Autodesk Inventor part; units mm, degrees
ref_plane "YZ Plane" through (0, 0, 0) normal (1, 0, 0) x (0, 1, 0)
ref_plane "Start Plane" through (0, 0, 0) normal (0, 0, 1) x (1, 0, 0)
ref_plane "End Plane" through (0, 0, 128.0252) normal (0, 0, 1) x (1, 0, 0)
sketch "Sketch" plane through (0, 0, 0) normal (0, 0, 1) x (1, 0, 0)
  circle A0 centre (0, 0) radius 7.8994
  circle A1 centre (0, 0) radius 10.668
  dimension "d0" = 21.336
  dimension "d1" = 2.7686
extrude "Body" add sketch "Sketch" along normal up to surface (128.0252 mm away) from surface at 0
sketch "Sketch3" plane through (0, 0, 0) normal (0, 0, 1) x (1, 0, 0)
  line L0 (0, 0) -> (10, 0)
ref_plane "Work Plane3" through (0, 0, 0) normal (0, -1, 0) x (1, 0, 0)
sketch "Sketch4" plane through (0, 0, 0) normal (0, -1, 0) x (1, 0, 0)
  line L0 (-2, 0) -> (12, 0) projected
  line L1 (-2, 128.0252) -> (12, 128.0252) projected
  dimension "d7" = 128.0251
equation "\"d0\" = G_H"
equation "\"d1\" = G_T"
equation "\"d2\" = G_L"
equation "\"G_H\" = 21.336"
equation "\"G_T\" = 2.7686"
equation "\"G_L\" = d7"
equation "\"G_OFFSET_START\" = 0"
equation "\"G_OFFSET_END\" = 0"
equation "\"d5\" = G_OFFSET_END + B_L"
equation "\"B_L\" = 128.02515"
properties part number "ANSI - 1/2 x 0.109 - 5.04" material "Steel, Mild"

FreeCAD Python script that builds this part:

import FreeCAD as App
import Part
import Sketcher

V = App.Vector
Q = App.Units.Quantity

doc = App.newDocument("Part")
params = doc.addObject("Spreadsheet::Sheet", "Params")
for row, (alias, value) in enumerate([
    ("sketch1_diameter", "0.84 in"),
    ("sketch1_diameter2", "0.622 in"),
    ("pad1_length", "128.0252 mm"),
], start=1):
    params.set(f"A{row}", alias)
    params.set(f"B{row}", "=" + value)
    params.setAlias(f"B{row}", alias)

body = doc.addObject("PartDesign::Body", "Body")

sketch1 = body.newObject("Sketcher::SketchObject", "Sketch")
sketch1.AttachmentSupport = (doc.getObject("XY_Plane"), [""])
sketch1.MapMode = "FlatFace"
sketch1.addGeometry(Part.Circle(V(0, 0, 0), V(0, 0, 1), 11), False)
sketch1.addGeometry(Part.Circle(V(0, 0, 0), V(0, 0, 1), 8), False)
sketch1.addConstraint(Sketcher.Constraint("Coincident", 0, 3, -1, 1))
sketch1.addConstraint(Sketcher.Constraint("Coincident", 1, 3, -1, 1))
sketch1.addConstraint(Sketcher.Constraint("Diameter", 0, Q("0.84 in")))
sketch1.addConstraint(Sketcher.Constraint("Diameter", 1, Q("0.622 in")))
sketch1.setExpression("Constraints[2]", "Params.sketch1_diameter")
sketch1.setExpression("Constraints[3]", "Params.sketch1_diameter2")
pad1 = body.newObject("PartDesign::Pad", "Pad")
pad1.Profile = sketch1
pad1.setExpression("Length", "Params.pad1_length")

doc.recompute()
